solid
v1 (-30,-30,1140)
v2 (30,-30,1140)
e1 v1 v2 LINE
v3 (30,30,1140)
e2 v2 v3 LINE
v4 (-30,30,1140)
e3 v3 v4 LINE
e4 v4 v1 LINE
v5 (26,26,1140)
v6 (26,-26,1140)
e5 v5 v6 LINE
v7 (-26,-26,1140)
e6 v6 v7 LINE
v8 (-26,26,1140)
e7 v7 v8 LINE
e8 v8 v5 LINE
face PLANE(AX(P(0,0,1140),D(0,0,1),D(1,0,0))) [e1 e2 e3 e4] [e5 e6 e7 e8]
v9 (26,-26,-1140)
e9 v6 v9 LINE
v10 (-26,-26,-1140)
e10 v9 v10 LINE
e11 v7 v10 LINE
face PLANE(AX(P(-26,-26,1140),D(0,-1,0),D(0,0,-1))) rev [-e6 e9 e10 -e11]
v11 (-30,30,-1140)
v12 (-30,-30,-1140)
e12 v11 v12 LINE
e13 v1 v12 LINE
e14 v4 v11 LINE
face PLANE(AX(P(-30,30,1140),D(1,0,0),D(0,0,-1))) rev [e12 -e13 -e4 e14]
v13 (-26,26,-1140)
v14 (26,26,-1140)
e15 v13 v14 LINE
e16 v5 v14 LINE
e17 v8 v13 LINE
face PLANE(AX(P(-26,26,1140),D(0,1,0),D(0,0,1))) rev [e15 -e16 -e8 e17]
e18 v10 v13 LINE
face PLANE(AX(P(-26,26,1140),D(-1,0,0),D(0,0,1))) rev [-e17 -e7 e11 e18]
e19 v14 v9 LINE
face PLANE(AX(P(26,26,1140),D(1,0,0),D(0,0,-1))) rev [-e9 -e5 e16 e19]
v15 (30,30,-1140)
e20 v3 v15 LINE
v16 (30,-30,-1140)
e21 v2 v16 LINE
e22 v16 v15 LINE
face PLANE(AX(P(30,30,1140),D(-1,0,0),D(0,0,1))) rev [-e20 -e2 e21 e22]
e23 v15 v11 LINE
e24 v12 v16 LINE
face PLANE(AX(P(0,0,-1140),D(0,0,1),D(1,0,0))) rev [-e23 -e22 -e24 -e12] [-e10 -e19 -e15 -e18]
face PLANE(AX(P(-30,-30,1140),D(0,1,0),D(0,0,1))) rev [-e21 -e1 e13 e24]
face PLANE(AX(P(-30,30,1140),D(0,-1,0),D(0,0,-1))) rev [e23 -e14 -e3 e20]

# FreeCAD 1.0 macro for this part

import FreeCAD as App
import Part
import Sketcher


def add_polygon(sketch, points):
    """Adds a closed chain of lines whose ends are joined by coincident constraints."""
    first, n = sketch.GeometryCount, len(points)
    for a, b in zip(points, points[1:] + points[:1]):
        sketch.addGeometry(Part.LineSegment(App.Vector(*a, 0), App.Vector(*b, 0)), False)
    for i in range(n):
        sketch.addConstraint(Sketcher.Constraint("Coincident", first + i, 2, first + (i + 1) % n, 1))

doc = App.newDocument("Part")
body = doc.addObject("PartDesign::Body", "Body")

sketch1 = body.newObject("Sketcher::SketchObject", "Sketch")
sketch1.AttachmentSupport = (doc.getObject("XY_Plane"), [""])
sketch1.MapMode = "FlatFace"
add_polygon(sketch1, [(-30, 30), (-30, -30), (30, -30), (30, 30)])
add_polygon(sketch1, [(26, -26), (-26, -26), (-26, 26), (26, 26)])
sketch1.addConstraint(Sketcher.Constraint("Vertical", 0))
sketch1.addConstraint(Sketcher.Constraint("Horizontal", 1))
sketch1.addConstraint(Sketcher.Constraint("Vertical", 2))
sketch1.addConstraint(Sketcher.Constraint("Horizontal", 3))
sketch1.addConstraint(Sketcher.Constraint("Horizontal", 4))
sketch1.addConstraint(Sketcher.Constraint("Vertical", 5))
sketch1.addConstraint(Sketcher.Constraint("Horizontal", 6))
sketch1.addConstraint(Sketcher.Constraint("Vertical", 7))
sketch1.addConstraint(Sketcher.Constraint("Symmetric", 0, 2, 2, 2, -1, 1))
sketch1.addConstraint(Sketcher.Constraint("Symmetric", 4, 2, 6, 2, -1, 1))
sketch1.addConstraint(Sketcher.Constraint("Equal", 3, 0))
sketch1.addConstraint(Sketcher.Constraint("Equal", 6, 5))
sketch1.addConstraint(Sketcher.Constraint("DistanceX", 1, 1, 1, 2, 60.0))
sketch1.addConstraint(Sketcher.Constraint("DistanceX", 4, 2, 4, 1, 52.0))

sketch2 = body.newObject("Sketcher::SketchObject", "Sketch001")
sketch2.AttachmentSupport = (doc.getObject("XZ_Plane"), [""])
sketch2.MapMode = "FlatFace"
sketch2.addGeometry(Part.BSplineCurve([App.Vector(0, -1140, 0), App.Vector(0, 1140, 0)], [2, 2], [0, 1], False, 1, [1, 1], False), False)
sketch2.addConstraint(Sketcher.Constraint("Block", 0))
doc.recompute()

additivepipe = body.newObject("PartDesign::AdditivePipe", "AdditivePipe")
additivepipe.Profile = sketch1
additivepipe.Spine = (sketch2, ["Edge1"])

doc.recompute()
